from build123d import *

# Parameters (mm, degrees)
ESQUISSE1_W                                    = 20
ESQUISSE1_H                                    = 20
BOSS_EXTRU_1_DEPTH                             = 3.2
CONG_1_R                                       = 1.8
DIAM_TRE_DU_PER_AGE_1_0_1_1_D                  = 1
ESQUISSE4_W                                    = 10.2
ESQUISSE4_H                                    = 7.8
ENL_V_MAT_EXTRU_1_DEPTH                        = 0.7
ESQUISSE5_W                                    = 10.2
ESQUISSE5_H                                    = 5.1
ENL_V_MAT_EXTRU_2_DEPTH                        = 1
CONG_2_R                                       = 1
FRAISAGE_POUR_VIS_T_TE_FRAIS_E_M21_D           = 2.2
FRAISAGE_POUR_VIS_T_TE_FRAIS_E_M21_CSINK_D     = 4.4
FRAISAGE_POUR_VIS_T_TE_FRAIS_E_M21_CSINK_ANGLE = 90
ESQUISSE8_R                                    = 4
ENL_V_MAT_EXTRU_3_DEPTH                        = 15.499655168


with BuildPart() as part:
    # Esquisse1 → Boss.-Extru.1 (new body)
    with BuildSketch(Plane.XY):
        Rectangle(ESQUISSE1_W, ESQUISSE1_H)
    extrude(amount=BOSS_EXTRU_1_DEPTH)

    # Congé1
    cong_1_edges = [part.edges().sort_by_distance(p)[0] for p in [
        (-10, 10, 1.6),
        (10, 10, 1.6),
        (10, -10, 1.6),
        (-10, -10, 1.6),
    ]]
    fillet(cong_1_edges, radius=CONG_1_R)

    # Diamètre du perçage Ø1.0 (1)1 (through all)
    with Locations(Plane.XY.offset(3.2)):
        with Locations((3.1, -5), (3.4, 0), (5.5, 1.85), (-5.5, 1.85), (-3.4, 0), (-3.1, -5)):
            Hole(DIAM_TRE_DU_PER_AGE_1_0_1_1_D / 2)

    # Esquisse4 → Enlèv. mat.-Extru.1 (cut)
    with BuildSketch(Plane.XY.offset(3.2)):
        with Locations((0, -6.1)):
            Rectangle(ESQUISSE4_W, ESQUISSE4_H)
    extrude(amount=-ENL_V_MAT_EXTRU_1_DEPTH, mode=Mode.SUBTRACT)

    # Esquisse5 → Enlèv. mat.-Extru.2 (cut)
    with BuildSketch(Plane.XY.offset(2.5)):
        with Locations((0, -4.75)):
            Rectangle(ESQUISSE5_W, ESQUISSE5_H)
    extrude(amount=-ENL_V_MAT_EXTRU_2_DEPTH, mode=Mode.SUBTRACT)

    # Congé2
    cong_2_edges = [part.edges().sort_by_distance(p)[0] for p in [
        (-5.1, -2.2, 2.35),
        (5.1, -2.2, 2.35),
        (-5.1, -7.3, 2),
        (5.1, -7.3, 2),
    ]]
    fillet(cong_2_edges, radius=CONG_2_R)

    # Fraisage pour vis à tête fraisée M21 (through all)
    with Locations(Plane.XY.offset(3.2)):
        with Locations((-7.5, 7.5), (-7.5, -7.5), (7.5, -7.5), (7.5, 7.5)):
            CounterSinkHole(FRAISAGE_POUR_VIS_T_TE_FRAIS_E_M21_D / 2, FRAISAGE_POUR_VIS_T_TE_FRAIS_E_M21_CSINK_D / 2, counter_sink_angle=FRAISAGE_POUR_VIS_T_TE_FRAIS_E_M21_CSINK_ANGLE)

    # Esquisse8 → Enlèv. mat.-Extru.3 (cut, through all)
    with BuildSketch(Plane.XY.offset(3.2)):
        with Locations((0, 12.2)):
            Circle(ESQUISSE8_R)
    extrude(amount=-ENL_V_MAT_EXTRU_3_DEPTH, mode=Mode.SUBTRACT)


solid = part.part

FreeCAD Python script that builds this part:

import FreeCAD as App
import Part
import Sketcher

V = App.Vector


def edges_at(feature, points):
    """Names of the edges that pass closest to the given points."""
    edges = feature.Shape.Edges
    near = lambda p: min(range(len(edges)), key=lambda i: edges[i].distToShape(Part.Vertex(*p))[0])
    return sorted({f"Edge{near(p) + 1}" for p in points})

doc = App.newDocument("Part")
body = doc.addObject("PartDesign::Body", "Body")

# Sketch on XY plane
sketch1 = doc.addObject("Sketcher::SketchObject", "Sketch")
body.addObject(sketch1)
sketch1.AttachmentSupport = (doc.XY_Plane, [""])
sketch1.MapMode = "FlatFace"
sketch1.addGeometry(Part.LineSegment(V(-10, 10, 0), V(-10, -10, 0)), False)
sketch1.addGeometry(Part.LineSegment(V(-10, -10, 0), V(10, -10, 0)), False)
sketch1.addGeometry(Part.LineSegment(V(10, -10, 0), V(10, 10, 0)), False)
sketch1.addGeometry(Part.LineSegment(V(10, 10, 0), V(-10, 10, 0)), False)
sketch1.addConstraint(Sketcher.Constraint("Coincident", 0, 2, 1, 1))
sketch1.addConstraint(Sketcher.Constraint("Coincident", 1, 2, 2, 1))
sketch1.addConstraint(Sketcher.Constraint("Coincident", 2, 2, 3, 1))
sketch1.addConstraint(Sketcher.Constraint("Coincident", 3, 2, 0, 1))
sketch1.addConstraint(Sketcher.Constraint("Vertical", 0))
sketch1.addConstraint(Sketcher.Constraint("Horizontal", 1))
sketch1.addConstraint(Sketcher.Constraint("Vertical", 2))
sketch1.addConstraint(Sketcher.Constraint("Horizontal", 3))
sketch1.addConstraint(Sketcher.Constraint("Symmetric", 0, 2, 2, 2, -1, 1))
sketch1.addConstraint(Sketcher.Constraint("Equal", 3, 0))
sketch1.addConstraint(Sketcher.Constraint("DistanceX", 1, 1, 1, 2, 20.0))
pad1 = doc.addObject("PartDesign::Pad", "Pad")
body.addObject(pad1)
pad1.Profile = sketch1
pad1.Length = 3.2
doc.recompute()

fillet = doc.addObject("PartDesign::Fillet", "Fillet")
body.addObject(fillet)
fillet.Base = (pad1, edges_at(pad1, [
    (-10, 10, 1.6),
    (10, 10, 1.6),
    (10, -10, 1.6),
    (-10, -10, 1.6),
]))
fillet.Radius = 1.8

# Sketch on XY plane
sketch2 = doc.addObject("Sketcher::SketchObject", "Sketch001")
body.addObject(sketch2)
sketch2.AttachmentSupport = (doc.XY_Plane, [""])
sketch2.MapMode = "FlatFace"
sketch2.AttachmentOffset = App.Placement(V(0, 0, 3.2), App.Rotation())
sketch2.addGeometry(Part.Circle(V(3.1, -5, 0), V(0, 0, 1), 0.5), False)
sketch2.addGeometry(Part.Circle(V(3.4, 0, 0), V(0, 0, 1), 0.5), False)
sketch2.addGeometry(Part.Circle(V(5.5, 1.9, 0), V(0, 0, 1), 0.5), False)
sketch2.addGeometry(Part.Circle(V(-5.5, 1.9, 0), V(0, 0, 1), 0.5), False)
sketch2.addGeometry(Part.Circle(V(-3.4, 0, 0), V(0, 0, 1), 0.5), False)
sketch2.addGeometry(Part.Circle(V(-3.1, -5, 0), V(0, 0, 1), 0.5), False)
sketch2.addConstraint(Sketcher.Constraint("Equal", 0, 1))
sketch2.addConstraint(Sketcher.Constraint("Equal", 1, 2))
sketch2.addConstraint(Sketcher.Constraint("Equal", 2, 3))
sketch2.addConstraint(Sketcher.Constraint("Equal", 3, 4))
sketch2.addConstraint(Sketcher.Constraint("Equal", 4, 5))
sketch2.addConstraint(Sketcher.Constraint("Symmetric", 1, 3, 4, 3, -1, 1))
sketch2.addConstraint(Sketcher.Constraint("Symmetric", 2, 3, 3, 3, -2))
sketch2.addConstraint(Sketcher.Constraint("Symmetric", 0, 3, 5, 3, -2))
sketch2.addConstraint(Sketcher.Constraint("PointOnObject", 1, 3, -1))
sketch2.addConstraint(Sketcher.Constraint("Diameter", 0, 1.0))
sketch2.addConstraint(Sketcher.Constraint("DistanceY", 0, 3, -1, 1, 5.0))
sketch2.addConstraint(Sketcher.Constraint("DistanceX", 3, 3, 2, 3, 11.0))
sketch2.addConstraint(Sketcher.Constraint("DistanceX", -1, 1, 0, 3, 3.1))
sketch2.addConstraint(Sketcher.Constraint("DistanceX", -1, 1, 1, 3, 3.4))
sketch2.addConstraint(Sketcher.Constraint("DistanceY", -1, 1, 2, 3, 1.85))
doc.recompute()
hole = doc.addObject("PartDesign::Hole", "Hole")
body.addObject(hole)
hole.Profile = sketch2
hole.ThreadType = "None"
hole.Diameter = 1
hole.DepthType = "ThroughAll"

# Sketch on XY plane
sketch3 = doc.addObject("Sketcher::SketchObject", "Sketch002")
body.addObject(sketch3)
sketch3.AttachmentSupport = (doc.XY_Plane, [""])
sketch3.MapMode = "FlatFace"
sketch3.AttachmentOffset = App.Placement(V(0, 0, 3.2), App.Rotation())
sketch3.addGeometry(Part.LineSegment(V(-5, -2, 0), V(-5, -10, 0)), False)
sketch3.addGeometry(Part.LineSegment(V(-5, -10, 0), V(5, -10, 0)), False)
sketch3.addGeometry(Part.LineSegment(V(5, -10, 0), V(5, -2, 0)), False)
sketch3.addGeometry(Part.LineSegment(V(5, -2, 0), V(-5, -2, 0)), False)
sketch3.addConstraint(Sketcher.Constraint("Coincident", 0, 2, 1, 1))
sketch3.addConstraint(Sketcher.Constraint("Coincident", 1, 2, 2, 1))
sketch3.addConstraint(Sketcher.Constraint("Coincident", 2, 2, 3, 1))
sketch3.addConstraint(Sketcher.Constraint("Coincident", 3, 2, 0, 1))
sketch3.addConstraint(Sketcher.Constraint("Vertical", 0))
sketch3.addConstraint(Sketcher.Constraint("Horizontal", 1))
sketch3.addConstraint(Sketcher.Constraint("Vertical", 2))
sketch3.addConstraint(Sketcher.Constraint("Horizontal", 3))
sketch3.addConstraint(Sketcher.Constraint("DistanceX", 1, 1, 1, 2, 10.2))
sketch3.addConstraint(Sketcher.Constraint("DistanceY", 0, 2, 0, 1, 7.8))
sketch3.addConstraint(Sketcher.Constraint("DistanceY", 0, 2, -1, 1, 10.0))
sketch3.addConstraint(Sketcher.Constraint("DistanceX", 0, 2, -1, 1, 5.1))
pocket1 = doc.addObject("PartDesign::Pocket", "Pocket")
body.addObject(pocket1)
pocket1.Profile = sketch3
pocket1.Length = 0.7

# Sketch on XY plane
sketch4 = doc.addObject("Sketcher::SketchObject", "Sketch003")
body.addObject(sketch4)
sketch4.AttachmentSupport = (doc.XY_Plane, [""])
sketch4.MapMode = "FlatFace"
sketch4.AttachmentOffset = App.Placement(V(0, 0, 2.5), App.Rotation())
sketch4.addGeometry(Part.LineSegment(V(-5, -2, 0), V(-5, -7, 0)), False)
sketch4.addGeometry(Part.LineSegment(V(-5, -7, 0), V(5, -7, 0)), False)
sketch4.addGeometry(Part.LineSegment(V(5, -7, 0), V(5, -2, 0)), False)
sketch4.addGeometry(Part.LineSegment(V(5, -2, 0), V(-5, -2, 0)), False)
sketch4.addConstraint(Sketcher.Constraint("Coincident", 0, 2, 1, 1))
sketch4.addConstraint(Sketcher.Constraint("Coincident", 1, 2, 2, 1))
sketch4.addConstraint(Sketcher.Constraint("Coincident", 2, 2, 3, 1))
sketch4.addConstraint(Sketcher.Constraint("Coincident", 3, 2, 0, 1))
sketch4.addConstraint(Sketcher.Constraint("Vertical", 0))
sketch4.addConstraint(Sketcher.Constraint("Horizontal", 1))
sketch4.addConstraint(Sketcher.Constraint("Vertical", 2))
sketch4.addConstraint(Sketcher.Constraint("Horizontal", 3))
sketch4.addConstraint(Sketcher.Constraint("DistanceX", 1, 1, 1, 2, 10.2))
sketch4.addConstraint(Sketcher.Constraint("DistanceY", 0, 2, 0, 1, 5.1))
sketch4.addConstraint(Sketcher.Constraint("DistanceX", 0, 2, -1, 1, 5.1))
sketch4.addConstraint(Sketcher.Constraint("DistanceY", 0, 2, -1, 1, 7.3))
pocket2 = doc.addObject("PartDesign::Pocket", "Pocket001")
body.addObject(pocket2)
pocket2.Profile = sketch4
pocket2.Length = 1
doc.recompute()

fillet2 = doc.addObject("PartDesign::Fillet", "Fillet001")
body.addObject(fillet2)
fillet2.Base = (pocket2, edges_at(pocket2, [
    (-5.1, -2.2, 2.35),
    (5.1, -2.2, 2.35),
    (-5.1, -7.3, 2),
    (5.1, -7.3, 2),
]))
fillet2.Radius = 1

# Sketch on XY plane
sketch5 = doc.addObject("Sketcher::SketchObject", "Sketch004")
body.addObject(sketch5)
sketch5.AttachmentSupport = (doc.XY_Plane, [""])
sketch5.MapMode = "FlatFace"
sketch5.AttachmentOffset = App.Placement(V(0, 0, 3.2), App.Rotation())
sketch5.addGeometry(Part.Circle(V(-7.5, 7.5, 0), V(0, 0, 1), 1.1), False)
sketch5.addGeometry(Part.Circle(V(-7.5, -7.5, 0), V(0, 0, 1), 1.1), False)
sketch5.addGeometry(Part.Circle(V(7.5, -7.5, 0), V(0, 0, 1), 1.1), False)
sketch5.addGeometry(Part.Circle(V(7.5, 7.5, 0), V(0, 0, 1), 1.1), False)
sketch5.addConstraint(Sketcher.Constraint("Equal", 0, 1))
sketch5.addConstraint(Sketcher.Constraint("Equal", 1, 2))
sketch5.addConstraint(Sketcher.Constraint("Equal", 2, 3))
sketch5.addConstraint(Sketcher.Constraint("Symmetric", 0, 3, 2, 3, -1, 1))
sketch5.addConstraint(Sketcher.Constraint("Symmetric", 1, 3, 3, 3, -1, 1))
sketch5.addConstraint(Sketcher.Constraint("Symmetric", 1, 3, 2, 3, -2))
sketch5.addConstraint(Sketcher.Constraint("Diameter", 0, 2.2))
sketch5.addConstraint(Sketcher.Constraint("DistanceY", 1, 3, 0, 3, 15.0))
sketch5.addConstraint(Sketcher.Constraint("DistanceX", 1, 3, 2, 3, 15.0))
doc.recompute()
hole2 = doc.addObject("PartDesign::Hole", "Hole001")
body.addObject(hole2)
hole2.Profile = sketch5
hole2.ThreadType = "None"
hole2.Diameter = 2.2
hole2.DepthType = "ThroughAll"
hole2.HoleCutType = "Countersink"
hole2.HoleCutDiameter = 4.4
hole2.HoleCutCountersinkAngle = 90

# Sketch on XY plane
sketch6 = doc.addObject("Sketcher::SketchObject", "Sketch005")
body.addObject(sketch6)
sketch6.AttachmentSupport = (doc.XY_Plane, [""])
sketch6.MapMode = "FlatFace"
sketch6.AttachmentOffset = App.Placement(V(0, 0, 3.2), App.Rotation())
sketch6.addGeometry(Part.Circle(V(0, 12.2, 0), V(0, 0, 1), 4), False)
sketch6.addConstraint(Sketcher.Constraint("PointOnObject", 0, 3, -2))
sketch6.addConstraint(Sketcher.Constraint("Diameter", 0, 8.0))
sketch6.addConstraint(Sketcher.Constraint("DistanceY", -1, 1, 0, 3, 12.2))
pocket3 = doc.addObject("PartDesign::Pocket", "Pocket002")
body.addObject(pocket3)
pocket3.Profile = sketch6
pocket3.Type = "ThroughAll"

doc.recompute()
